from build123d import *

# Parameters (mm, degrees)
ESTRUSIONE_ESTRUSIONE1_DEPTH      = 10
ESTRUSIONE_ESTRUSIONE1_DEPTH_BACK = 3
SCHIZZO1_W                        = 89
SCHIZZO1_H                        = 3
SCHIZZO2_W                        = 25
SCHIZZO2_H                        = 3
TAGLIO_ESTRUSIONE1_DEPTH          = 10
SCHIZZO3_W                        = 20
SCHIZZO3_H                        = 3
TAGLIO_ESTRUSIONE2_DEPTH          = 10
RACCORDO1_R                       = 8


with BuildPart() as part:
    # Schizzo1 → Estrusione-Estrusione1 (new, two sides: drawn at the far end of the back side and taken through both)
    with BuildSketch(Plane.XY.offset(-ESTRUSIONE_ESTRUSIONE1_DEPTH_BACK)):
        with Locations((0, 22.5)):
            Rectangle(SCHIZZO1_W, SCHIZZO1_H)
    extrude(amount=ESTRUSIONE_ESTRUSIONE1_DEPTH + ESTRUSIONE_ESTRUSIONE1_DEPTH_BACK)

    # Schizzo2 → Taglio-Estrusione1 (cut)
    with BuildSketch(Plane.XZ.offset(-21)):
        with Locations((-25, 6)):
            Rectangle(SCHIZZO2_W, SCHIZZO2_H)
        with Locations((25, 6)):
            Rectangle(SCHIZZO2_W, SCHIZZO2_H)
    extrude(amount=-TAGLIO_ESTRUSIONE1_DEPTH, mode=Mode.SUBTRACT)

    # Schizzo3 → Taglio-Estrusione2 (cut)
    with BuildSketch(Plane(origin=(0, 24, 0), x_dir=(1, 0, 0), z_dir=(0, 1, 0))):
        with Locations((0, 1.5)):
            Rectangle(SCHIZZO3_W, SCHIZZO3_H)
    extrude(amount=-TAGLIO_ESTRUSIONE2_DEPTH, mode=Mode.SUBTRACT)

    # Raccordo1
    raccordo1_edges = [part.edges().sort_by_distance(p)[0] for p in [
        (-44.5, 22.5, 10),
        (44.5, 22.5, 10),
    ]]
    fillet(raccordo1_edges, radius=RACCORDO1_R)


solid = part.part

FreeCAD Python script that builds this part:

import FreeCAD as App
import Part
import Sketcher
Q = App.Units.Quantity


def edges_at(feature, points):
    """Names of the edges that pass closest to the given points."""
    edges = feature.Shape.Edges
    near = lambda p: min(range(len(edges)), key=lambda i: edges[i].distToShape(Part.Vertex(*p))[0])
    return sorted({f"Edge{near(p) + 1}" for p in points})


def add_polygon(sketch, points):
    """Adds a closed chain of lines whose ends are joined by coincident constraints."""
    first, n = sketch.GeometryCount, len(points)
    for a, b in zip(points, points[1:] + points[:1]):
        sketch.addGeometry(Part.LineSegment(App.Vector(*a, 0), App.Vector(*b, 0)), False)
    for i in range(n):
        sketch.addConstraint(Sketcher.Constraint("Coincident", first + i, 2, first + (i + 1) % n, 1))

doc = App.newDocument("Part")
body = doc.addObject("PartDesign::Body", "Body")

sketch1 = body.newObject("Sketcher::SketchObject", "Sketch")
sketch1.AttachmentSupport = (doc.getObject("XY_Plane"), [""])
sketch1.MapMode = "FlatFace"
add_polygon(sketch1, [(-44.5, 24), (-44.5, 21), (44.5, 21), (44.5, 24)])
sketch1.addConstraint([
    Sketcher.Constraint("Vertical", 0),
    Sketcher.Constraint("Horizontal", 1),
    Sketcher.Constraint("Vertical", 2),
    Sketcher.Constraint("Horizontal", 3),
    Sketcher.Constraint("DistanceX", 1, 1, 1, 2, Q("89 mm")),
    Sketcher.Constraint("DistanceY", 0, 2, 0, 1, Q("3 mm")),
    Sketcher.Constraint("DistanceY", -1, 1, 0, 2, Q("21 mm")),
    Sketcher.Constraint("DistanceX", 0, 2, -1, 1, Q("44.5 mm")),
])
pad1 = body.newObject("PartDesign::Pad", "Pad")
pad1.Profile = sketch1
pad1.Type = "TwoLengths"
pad1.Length = 10
pad1.Length2 = 3

sketch2 = body.newObject("Sketcher::SketchObject", "Sketch001")
sketch2.AttachmentSupport = (doc.getObject("XZ_Plane"), [""])
sketch2.MapMode = "FlatFace"
sketch2.AttachmentOffset = App.Placement(App.Vector(0, 0, -21), App.Rotation())
add_polygon(sketch2, [(-37.5, 7.5), (-37.5, 4.5), (-12.5, 4.5), (-12.5, 7.5)])
add_polygon(sketch2, [(12.5, 7.5), (12.5, 4.5), (37.5, 4.5), (37.5, 7.5)])
sketch2.addConstraint([
    Sketcher.Constraint("Vertical", 0),
    Sketcher.Constraint("Horizontal", 1),
    Sketcher.Constraint("Vertical", 2),
    Sketcher.Constraint("Horizontal", 3),
    Sketcher.Constraint("Vertical", 4),
    Sketcher.Constraint("Horizontal", 5),
    Sketcher.Constraint("Vertical", 6),
    Sketcher.Constraint("Horizontal", 7),
    Sketcher.Constraint("Symmetric", 1, 2, 4, 2, -2),
    Sketcher.Constraint("Symmetric", 3, 2, 6, 2, -2),
    Sketcher.Constraint("DistanceX", 1, 1, 1, 2, Q("25 mm")),
    Sketcher.Constraint("DistanceY", 0, 2, 0, 1, Q("3 mm")),
    Sketcher.Constraint("DistanceX", 1, 2, 4, 2, Q("25 mm")),
    Sketcher.Constraint("DistanceY", -1, 1, 0, 2, Q("4.5 mm")),
])
pocket1 = body.newObject("PartDesign::Pocket", "Pocket")
pocket1.Profile = sketch2
pocket1.Length = 10

sketch3 = body.newObject("Sketcher::SketchObject", "Sketch002")
sketch3.AttachmentSupport = (doc.getObject("XZ_Plane"), [""])
sketch3.MapMode = "FlatFace"
sketch3.AttachmentOffset = App.Placement(App.Vector(0, 0, -24), App.Rotation())
add_polygon(sketch3, [(-10, -3), (-10, 0), (10, 0), (10, -3)])
sketch3.addConstraint([
    Sketcher.Constraint("Vertical", 0),
    Sketcher.Constraint("Horizontal", 1),
    Sketcher.Constraint("Vertical", 2),
    Sketcher.Constraint("Horizontal", 3),
    Sketcher.Constraint("Symmetric", 0, 2, 1, 2, -1, 1),
    Sketcher.Constraint("DistanceX", 1, 1, 1, 2, Q("20 mm")),
    Sketcher.Constraint("DistanceY", 0, 1, 0, 2, Q("3 mm")),
])
pocket2 = body.newObject("PartDesign::Pocket", "Pocket001")
pocket2.Profile = sketch3
pocket2.Length = 10
pocket2.Reversed = True
doc.recompute()

fillet = body.newObject("PartDesign::Fillet", "Fillet")
fillet.Base = (pocket2, edges_at(pocket2, [(-44.5, 22.5, 10), (44.5, 22.5, 10)]))
fillet.Radius = 8

doc.recompute()
